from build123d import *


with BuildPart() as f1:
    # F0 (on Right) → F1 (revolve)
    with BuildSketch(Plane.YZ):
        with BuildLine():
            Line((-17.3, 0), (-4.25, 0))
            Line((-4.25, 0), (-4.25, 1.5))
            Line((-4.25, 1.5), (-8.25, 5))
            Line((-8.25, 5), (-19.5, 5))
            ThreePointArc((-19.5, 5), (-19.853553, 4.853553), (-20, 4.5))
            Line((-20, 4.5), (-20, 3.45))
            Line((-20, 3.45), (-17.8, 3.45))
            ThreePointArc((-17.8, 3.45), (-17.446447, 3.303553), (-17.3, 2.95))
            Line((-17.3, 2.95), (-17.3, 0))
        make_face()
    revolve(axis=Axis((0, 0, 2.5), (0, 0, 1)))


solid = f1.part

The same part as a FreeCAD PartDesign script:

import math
import FreeCAD as App
import Part
import Sketcher

V = App.Vector

doc = App.newDocument("Part")
body = doc.addObject("PartDesign::Body", "Body")

sketch1 = body.newObject("Sketcher::SketchObject", "Sketch")
sketch1.AttachmentSupport = (doc.getObject("YZ_Plane"), [""])
sketch1.MapMode = "FlatFace"
sketch1.addGeometry([
    Part.LineSegment(V(-17.3, 0, 0), V(-4.2, 0, 0)),
    Part.LineSegment(V(-4.2, 0, 0), V(-4.2, 1.5, 0)),
    Part.LineSegment(V(-4.2, 1.5, 0), V(-8.2, 5, 0)),
    Part.LineSegment(V(-8.2, 5, 0), V(-19.5, 5, 0)),
    Part.ArcOfCircle(Part.Circle(V(-19.5, 4.5, 0), V(0, 0, 1), 0.5), math.radians(90), math.radians(180)),
    Part.LineSegment(V(-20, 4.5, 0), V(-20, 3.5, 0)),
    Part.LineSegment(V(-20, 3.5, 0), V(-17.8, 3.5, 0)),
    Part.ArcOfCircle(Part.Circle(V(-17.8, 2.9, 0), V(0, 0, 1), 0.5), math.radians(0), math.radians(90)),
    Part.LineSegment(V(-17.3, 3, 0), V(-17.3, 0, 0)),
], False)
sketch1.addConstraint([
    Sketcher.Constraint("Coincident", 0, 2, 1, 1),
    Sketcher.Constraint("Coincident", 1, 2, 2, 1),
    Sketcher.Constraint("Coincident", 2, 2, 3, 1),
    Sketcher.Constraint("Coincident", 3, 2, 4, 1),
    Sketcher.Constraint("Coincident", 4, 2, 5, 1),
    Sketcher.Constraint("Coincident", 5, 2, 6, 1),
    Sketcher.Constraint("Coincident", 6, 2, 7, 2),
    Sketcher.Constraint("Coincident", 7, 1, 8, 1),
    Sketcher.Constraint("Coincident", 8, 2, 0, 1),
    Sketcher.Constraint("Horizontal", 0),
    Sketcher.Constraint("Vertical", 1),
    Sketcher.Constraint("Horizontal", 3),
    Sketcher.Constraint("Vertical", 5),
    Sketcher.Constraint("Horizontal", 6),
    Sketcher.Constraint("Vertical", 8),
    Sketcher.Constraint("Equal", 4, 7),
    Sketcher.Constraint("PointOnObject", 0, 2, -1),
    Sketcher.Constraint("Vertical", 4, 3, 3, 2),
    Sketcher.Constraint("Vertical", 7, 3, 6, 2),
    Sketcher.Constraint("Radius", 4, 0.500001),
    Sketcher.Constraint("DistanceX", 6, 1, 6, 2, 2.2),
    Sketcher.Constraint("DistanceY", 1, 1, 1, 2, 1.5),
    Sketcher.Constraint("DistanceY", -1, 1, 2, 2, 5.0),
    Sketcher.Constraint("DistanceX", 4, 2, -1, 1, 20.0),
    Sketcher.Constraint("DistanceX", 2, 2, 1, 2, 4.0),
    Sketcher.Constraint("DistanceY", 1, 2, 4, 2, 3.0),
    Sketcher.Constraint("DistanceX", 0, 1, 0, 2, 13.05),
    Sketcher.Constraint("DistanceY", 5, 2, 5, 1, 1.05),
    Sketcher.Constraint("DistanceY", 8, 2, 8, 1, 2.95),
])
revolution = body.newObject("PartDesign::Revolution", "Revolution")
revolution.Profile = sketch1
revolution.ReferenceAxis = (sketch1, ["V_Axis"])
revolution.Angle = 360

doc.recompute()
